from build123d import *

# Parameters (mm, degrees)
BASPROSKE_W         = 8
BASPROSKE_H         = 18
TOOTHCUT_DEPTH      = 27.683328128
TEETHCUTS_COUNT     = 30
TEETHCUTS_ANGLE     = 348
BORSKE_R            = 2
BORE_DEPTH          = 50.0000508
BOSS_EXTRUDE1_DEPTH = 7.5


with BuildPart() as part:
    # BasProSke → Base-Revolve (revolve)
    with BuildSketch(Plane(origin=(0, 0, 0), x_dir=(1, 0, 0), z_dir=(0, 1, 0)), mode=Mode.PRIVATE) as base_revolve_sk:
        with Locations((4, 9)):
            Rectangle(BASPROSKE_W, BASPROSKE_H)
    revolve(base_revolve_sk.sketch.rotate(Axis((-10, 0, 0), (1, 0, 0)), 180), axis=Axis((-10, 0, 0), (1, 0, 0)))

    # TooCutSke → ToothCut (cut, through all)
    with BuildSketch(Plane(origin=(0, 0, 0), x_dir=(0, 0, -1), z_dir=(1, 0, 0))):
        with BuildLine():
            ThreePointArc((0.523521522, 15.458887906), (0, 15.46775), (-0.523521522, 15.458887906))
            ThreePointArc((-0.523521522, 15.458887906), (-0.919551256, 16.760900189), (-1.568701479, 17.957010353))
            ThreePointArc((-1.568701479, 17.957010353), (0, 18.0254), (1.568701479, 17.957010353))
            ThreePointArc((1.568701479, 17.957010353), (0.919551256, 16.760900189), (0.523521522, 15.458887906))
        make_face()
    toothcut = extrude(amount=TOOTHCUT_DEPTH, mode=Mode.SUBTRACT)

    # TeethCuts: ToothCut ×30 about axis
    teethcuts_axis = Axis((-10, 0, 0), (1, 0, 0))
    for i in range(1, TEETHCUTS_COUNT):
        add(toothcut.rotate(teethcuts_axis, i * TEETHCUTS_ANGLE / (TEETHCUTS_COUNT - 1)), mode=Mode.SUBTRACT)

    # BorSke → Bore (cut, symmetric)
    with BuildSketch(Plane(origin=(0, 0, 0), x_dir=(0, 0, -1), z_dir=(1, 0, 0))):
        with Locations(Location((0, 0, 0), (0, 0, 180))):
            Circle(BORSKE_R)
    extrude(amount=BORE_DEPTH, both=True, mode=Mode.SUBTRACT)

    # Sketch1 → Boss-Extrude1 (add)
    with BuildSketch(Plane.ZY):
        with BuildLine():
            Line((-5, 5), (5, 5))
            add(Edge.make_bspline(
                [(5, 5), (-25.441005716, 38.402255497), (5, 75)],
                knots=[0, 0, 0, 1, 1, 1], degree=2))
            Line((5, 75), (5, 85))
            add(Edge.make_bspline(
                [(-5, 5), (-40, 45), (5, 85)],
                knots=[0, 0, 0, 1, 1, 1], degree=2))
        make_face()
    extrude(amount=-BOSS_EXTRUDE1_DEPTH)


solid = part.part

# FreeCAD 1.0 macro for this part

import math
import FreeCAD as App
import Part
import Sketcher
Q = App.Units.Quantity


def add_polygon(sketch, points):
    """Adds a closed chain of lines whose ends are joined by coincident constraints."""
    first, n = sketch.GeometryCount, len(points)
    for a, b in zip(points, points[1:] + points[:1]):
        sketch.addGeometry(Part.LineSegment(App.Vector(*a, 0), App.Vector(*b, 0)), False)
    for i in range(n):
        sketch.addConstraint(Sketcher.Constraint("Coincident", first + i, 2, first + (i + 1) % n, 1))

doc = App.newDocument("Part")
params = doc.addObject("Spreadsheet::Sheet", "Params")
for row, (alias, value) in enumerate([
    ("sketch1_width", "8 mm"),
    ("sketch1_height", "18 mm"),
    ("revolution_angle", "360 deg"),
    ("sketch2_radius", "6.75 mm"),
    ("sketch3_diameter", "4 mm"),
    ("pocket2_length", "100.000102 mm"),
    ("pad1_length", "7.5 mm"),
], start=1):
    params.set(f"A{row}", alias)
    params.set(f"B{row}", "=" + value)
    params.setAlias(f"B{row}", alias)

body = doc.addObject("PartDesign::Body", "Body")

# Sketch on XZ plane
sketch1 = body.newObject("Sketcher::SketchObject", "Sketch")
sketch1.AttachmentSupport = (doc.getObject("XZ_Plane"), [""])
sketch1.MapMode = "FlatFace"
add_polygon(sketch1, [(0, -18), (0, 0), (8, 0), (8, -18)])  # lines 0-3
sketch1.addConstraint(Sketcher.Constraint("Vertical", 0))
sketch1.addConstraint(Sketcher.Constraint("Horizontal", 1))
sketch1.addConstraint(Sketcher.Constraint("Vertical", 2))
sketch1.addConstraint(Sketcher.Constraint("Horizontal", 3))
sketch1.addConstraint(Sketcher.Constraint("Coincident", 0, 2, -1, 1))
sketch1.addConstraint(Sketcher.Constraint("DistanceX", 1, 1, 1, 2, Q("8 mm")))
sketch1.addConstraint(Sketcher.Constraint("DistanceY", 0, 1, 0, 2, Q("18 mm")))
sketch1.setExpression("Constraints[9]", "Params.sketch1_width")
sketch1.setExpression("Constraints[10]", "Params.sketch1_height")
revolution = body.newObject("PartDesign::Revolution", "Revolution")
revolution.Profile = sketch1
revolution.ReferenceAxis = (sketch1, ["H_Axis"])
revolution.setExpression("Angle", "Params.revolution_angle")

# Sketch on YZ plane
sketch2 = body.newObject("Sketcher::SketchObject", "Sketch001")
sketch2.AttachmentSupport = (doc.getObject("YZ_Plane"), [""])
sketch2.MapMode = "FlatFace"
sketch2.addGeometry(Part.ArcOfCircle(Part.Circle(App.Vector(0, 0, 0), App.Vector(0, 0, 1), 15.5), math.radians(-1.94), math.radians(1.94)), False)
sketch2.addGeometry(Part.ArcOfCircle(Part.Circle(App.Vector(14.2, -7.1, 0), App.Vector(0, 0, 1), 6.8), math.radians(56), math.radians(79)), False)
sketch2.addGeometry(Part.ArcOfCircle(Part.Circle(App.Vector(0, 0, 0), App.Vector(0, 0, 1), 18), math.radians(-4.99), math.radians(4.99)), False)
sketch2.addGeometry(Part.ArcOfCircle(Part.Circle(App.Vector(14.2, 7.1, 0), App.Vector(0, 0, 1), 6.8), math.radians(-79), math.radians(-56)), False)
sketch2.addConstraint(Sketcher.Constraint("Coincident", 0, 1, 1, 2))
sketch2.addConstraint(Sketcher.Constraint("Coincident", 1, 1, 2, 1))
sketch2.addConstraint(Sketcher.Constraint("Coincident", 2, 2, 3, 2))
sketch2.addConstraint(Sketcher.Constraint("Coincident", 3, 1, 0, 2))
sketch2.addConstraint(Sketcher.Constraint("Coincident", 0, 3, -1, 1))
sketch2.addConstraint(Sketcher.Constraint("Coincident", 2, 3, -1, 1))
sketch2.addConstraint(Sketcher.Constraint("Equal", 1, 3))
sketch2.addConstraint(Sketcher.Constraint("Symmetric", 1, 3, 3, 3, -1))
sketch2.addConstraint(Sketcher.Constraint("Radius", 1, Q("6.75 mm")))
sketch2.addConstraint(Sketcher.Constraint("Radius", 2, Q("18.0254 mm")))
sketch2.addConstraint(Sketcher.Constraint("Radius", 0, Q("15.467751 mm")))
sketch2.addConstraint(Sketcher.Constraint("DistanceY", 1, 1, -1, 1, Q("1.568701 mm")))
sketch2.addConstraint(Sketcher.Constraint("DistanceY", 0, 1, -1, 1, Q("0.523522 mm")))
sketch2.setExpression("Constraints[8]", "Params.sketch2_radius")
pocket1 = body.newObject("PartDesign::Pocket", "Pocket")
pocket1.Profile = sketch2
pocket1.Type = "ThroughAll"
pocket1.Reversed = True
doc.recompute()

polarpattern = body.newObject("PartDesign::PolarPattern", "PolarPattern")
polarpattern.Originals = [pocket1]
polarpattern.Axis = (doc.getObject("X_Axis"), [""])
polarpattern.Angle = 360
polarpattern.Occurrences = 30
body.Tip = polarpattern

# Sketch on YZ plane
sketch3 = body.newObject("Sketcher::SketchObject", "Sketch002")
sketch3.AttachmentSupport = (doc.getObject("YZ_Plane"), [""])
sketch3.MapMode = "FlatFace"
sketch3.addGeometry(Part.Circle(App.Vector(0, 0, 0), App.Vector(0, 0, 1), 2), False)
sketch3.addConstraint(Sketcher.Constraint("Coincident", 0, 3, -1, 1))
sketch3.addConstraint(Sketcher.Constraint("Diameter", 0, Q("4 mm")))
sketch3.setExpression("Constraints[1]", "Params.sketch3_diameter")
pocket2 = body.newObject("PartDesign::Pocket", "Pocket001")
pocket2.Profile = sketch3
pocket2.setExpression("Length", "Params.pocket2_length")
pocket2.Midplane = True

# Sketch on YZ plane
sketch4 = body.newObject("Sketcher::SketchObject", "Sketch003")
sketch4.AttachmentSupport = (doc.getObject("YZ_Plane"), [""])
sketch4.MapMode = "FlatFace"
sketch4.addGeometry(Part.LineSegment(App.Vector(5, -5, 0), App.Vector(5, 5, 0)), False)
sketch4.addGeometry(Part.BSplineCurve([App.Vector(5, 5, 0), App.Vector(38.402255, -25.441006, 0), App.Vector(75, 5, 0)], [3, 3], [0, 1], False, 2, [1, 1, 1], False), False)
sketch4.addGeometry(Part.LineSegment(App.Vector(75, 5, 0), App.Vector(85, 5, 0)), False)
sketch4.addGeometry(Part.BSplineCurve([App.Vector(5, -5, 0), App.Vector(45, -40, 0), App.Vector(85, 5, 0)], [3, 3], [0, 1], False, 2, [1, 1, 1], False), False)
sketch4.addConstraint(Sketcher.Constraint("Block", 1))
sketch4.addConstraint(Sketcher.Constraint("Block", 3))
sketch4.addConstraint(Sketcher.Constraint("Coincident", 0, 2, 1, 1))
sketch4.addConstraint(Sketcher.Constraint("Coincident", 1, 2, 2, 1))
sketch4.addConstraint(Sketcher.Constraint("Coincident", 2, 2, 3, 2))
sketch4.addConstraint(Sketcher.Constraint("Coincident", 3, 1, 0, 1))
pad1 = body.newObject("PartDesign::Pad", "Pad")
pad1.Profile = sketch4
pad1.setExpression("Length", "Params.pad1_length")

doc.recompute()
